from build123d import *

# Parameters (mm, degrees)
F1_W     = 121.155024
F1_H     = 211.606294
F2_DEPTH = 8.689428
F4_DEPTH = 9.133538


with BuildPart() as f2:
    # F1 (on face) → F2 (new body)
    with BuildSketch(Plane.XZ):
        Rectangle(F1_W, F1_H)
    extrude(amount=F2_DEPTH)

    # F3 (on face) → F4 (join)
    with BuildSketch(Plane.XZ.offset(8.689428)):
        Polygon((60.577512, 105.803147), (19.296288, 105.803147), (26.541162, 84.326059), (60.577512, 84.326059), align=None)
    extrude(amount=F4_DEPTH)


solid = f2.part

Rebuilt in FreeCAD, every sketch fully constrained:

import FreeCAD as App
import Part
import Sketcher

V = App.Vector

doc = App.newDocument("Part")
body = doc.addObject("PartDesign::Body", "Body")

# Sketch on XZ plane
sketch1 = body.newObject("Sketcher::SketchObject", "Sketch")
sketch1.AttachmentSupport = (doc.getObject("XZ_Plane"), [""])
sketch1.MapMode = "FlatFace"
sketch1.addGeometry([
    Part.LineSegment(V(-61, 106, 0), V(-61, -106, 0)),
    Part.LineSegment(V(-61, -106, 0), V(61, -106, 0)),
    Part.LineSegment(V(61, -106, 0), V(61, 106, 0)),
    Part.LineSegment(V(61, 106, 0), V(-61, 106, 0)),
], False)
sketch1.addConstraint([
    Sketcher.Constraint("Coincident", 0, 2, 1, 1),
    Sketcher.Constraint("Coincident", 1, 2, 2, 1),
    Sketcher.Constraint("Coincident", 2, 2, 3, 1),
    Sketcher.Constraint("Coincident", 3, 2, 0, 1),
    Sketcher.Constraint("Vertical", 0),
    Sketcher.Constraint("Horizontal", 1),
    Sketcher.Constraint("Vertical", 2),
    Sketcher.Constraint("Horizontal", 3),
    Sketcher.Constraint("Symmetric", 0, 2, 2, 2, -1, 1),
    Sketcher.Constraint("DistanceX", 1, 1, 1, 2, 121.155024),
    Sketcher.Constraint("DistanceY", 0, 2, 0, 1, 211.606294),
])
pad1 = body.newObject("PartDesign::Pad", "Pad")
pad1.Profile = sketch1
pad1.Length = 8.689428

# Sketch on XZ plane
sketch2 = body.newObject("Sketcher::SketchObject", "Sketch001")
sketch2.AttachmentSupport = (doc.getObject("XZ_Plane"), [""])
sketch2.MapMode = "FlatFace"
sketch2.AttachmentOffset = App.Placement(V(0, 0, 8.689428), App.Rotation())
sketch2.addGeometry([
    Part.LineSegment(V(61, 106, 0), V(19, 106, 0)),
    Part.LineSegment(V(19, 106, 0), V(27, 84, 0)),
    Part.LineSegment(V(27, 84, 0), V(61, 84, 0)),
    Part.LineSegment(V(61, 84, 0), V(61, 106, 0)),
], False)
sketch2.addConstraint([
    Sketcher.Constraint("Coincident", 0, 2, 1, 1),
    Sketcher.Constraint("Coincident", 1, 2, 2, 1),
    Sketcher.Constraint("Coincident", 2, 2, 3, 1),
    Sketcher.Constraint("Coincident", 3, 2, 0, 1),
    Sketcher.Constraint("Horizontal", 0),
    Sketcher.Constraint("Horizontal", 2),
    Sketcher.Constraint("Vertical", 3),
    Sketcher.Constraint("DistanceX", 2, 1, 2, 2, 34.03635),
    Sketcher.Constraint("Distance", 1, 22.666131),
    Sketcher.Constraint("DistanceX", 0, 2, 0, 1, 41.281224),
    Sketcher.Constraint("DistanceX", -1, 1, 0, 2, 19.296288),
    Sketcher.Constraint("DistanceY", -1, 1, 1, 2, 84.326059),
])
pad2 = body.newObject("PartDesign::Pad", "Pad001")
pad2.Profile = sketch2
pad2.Length = 9.133538

doc.recompute()
